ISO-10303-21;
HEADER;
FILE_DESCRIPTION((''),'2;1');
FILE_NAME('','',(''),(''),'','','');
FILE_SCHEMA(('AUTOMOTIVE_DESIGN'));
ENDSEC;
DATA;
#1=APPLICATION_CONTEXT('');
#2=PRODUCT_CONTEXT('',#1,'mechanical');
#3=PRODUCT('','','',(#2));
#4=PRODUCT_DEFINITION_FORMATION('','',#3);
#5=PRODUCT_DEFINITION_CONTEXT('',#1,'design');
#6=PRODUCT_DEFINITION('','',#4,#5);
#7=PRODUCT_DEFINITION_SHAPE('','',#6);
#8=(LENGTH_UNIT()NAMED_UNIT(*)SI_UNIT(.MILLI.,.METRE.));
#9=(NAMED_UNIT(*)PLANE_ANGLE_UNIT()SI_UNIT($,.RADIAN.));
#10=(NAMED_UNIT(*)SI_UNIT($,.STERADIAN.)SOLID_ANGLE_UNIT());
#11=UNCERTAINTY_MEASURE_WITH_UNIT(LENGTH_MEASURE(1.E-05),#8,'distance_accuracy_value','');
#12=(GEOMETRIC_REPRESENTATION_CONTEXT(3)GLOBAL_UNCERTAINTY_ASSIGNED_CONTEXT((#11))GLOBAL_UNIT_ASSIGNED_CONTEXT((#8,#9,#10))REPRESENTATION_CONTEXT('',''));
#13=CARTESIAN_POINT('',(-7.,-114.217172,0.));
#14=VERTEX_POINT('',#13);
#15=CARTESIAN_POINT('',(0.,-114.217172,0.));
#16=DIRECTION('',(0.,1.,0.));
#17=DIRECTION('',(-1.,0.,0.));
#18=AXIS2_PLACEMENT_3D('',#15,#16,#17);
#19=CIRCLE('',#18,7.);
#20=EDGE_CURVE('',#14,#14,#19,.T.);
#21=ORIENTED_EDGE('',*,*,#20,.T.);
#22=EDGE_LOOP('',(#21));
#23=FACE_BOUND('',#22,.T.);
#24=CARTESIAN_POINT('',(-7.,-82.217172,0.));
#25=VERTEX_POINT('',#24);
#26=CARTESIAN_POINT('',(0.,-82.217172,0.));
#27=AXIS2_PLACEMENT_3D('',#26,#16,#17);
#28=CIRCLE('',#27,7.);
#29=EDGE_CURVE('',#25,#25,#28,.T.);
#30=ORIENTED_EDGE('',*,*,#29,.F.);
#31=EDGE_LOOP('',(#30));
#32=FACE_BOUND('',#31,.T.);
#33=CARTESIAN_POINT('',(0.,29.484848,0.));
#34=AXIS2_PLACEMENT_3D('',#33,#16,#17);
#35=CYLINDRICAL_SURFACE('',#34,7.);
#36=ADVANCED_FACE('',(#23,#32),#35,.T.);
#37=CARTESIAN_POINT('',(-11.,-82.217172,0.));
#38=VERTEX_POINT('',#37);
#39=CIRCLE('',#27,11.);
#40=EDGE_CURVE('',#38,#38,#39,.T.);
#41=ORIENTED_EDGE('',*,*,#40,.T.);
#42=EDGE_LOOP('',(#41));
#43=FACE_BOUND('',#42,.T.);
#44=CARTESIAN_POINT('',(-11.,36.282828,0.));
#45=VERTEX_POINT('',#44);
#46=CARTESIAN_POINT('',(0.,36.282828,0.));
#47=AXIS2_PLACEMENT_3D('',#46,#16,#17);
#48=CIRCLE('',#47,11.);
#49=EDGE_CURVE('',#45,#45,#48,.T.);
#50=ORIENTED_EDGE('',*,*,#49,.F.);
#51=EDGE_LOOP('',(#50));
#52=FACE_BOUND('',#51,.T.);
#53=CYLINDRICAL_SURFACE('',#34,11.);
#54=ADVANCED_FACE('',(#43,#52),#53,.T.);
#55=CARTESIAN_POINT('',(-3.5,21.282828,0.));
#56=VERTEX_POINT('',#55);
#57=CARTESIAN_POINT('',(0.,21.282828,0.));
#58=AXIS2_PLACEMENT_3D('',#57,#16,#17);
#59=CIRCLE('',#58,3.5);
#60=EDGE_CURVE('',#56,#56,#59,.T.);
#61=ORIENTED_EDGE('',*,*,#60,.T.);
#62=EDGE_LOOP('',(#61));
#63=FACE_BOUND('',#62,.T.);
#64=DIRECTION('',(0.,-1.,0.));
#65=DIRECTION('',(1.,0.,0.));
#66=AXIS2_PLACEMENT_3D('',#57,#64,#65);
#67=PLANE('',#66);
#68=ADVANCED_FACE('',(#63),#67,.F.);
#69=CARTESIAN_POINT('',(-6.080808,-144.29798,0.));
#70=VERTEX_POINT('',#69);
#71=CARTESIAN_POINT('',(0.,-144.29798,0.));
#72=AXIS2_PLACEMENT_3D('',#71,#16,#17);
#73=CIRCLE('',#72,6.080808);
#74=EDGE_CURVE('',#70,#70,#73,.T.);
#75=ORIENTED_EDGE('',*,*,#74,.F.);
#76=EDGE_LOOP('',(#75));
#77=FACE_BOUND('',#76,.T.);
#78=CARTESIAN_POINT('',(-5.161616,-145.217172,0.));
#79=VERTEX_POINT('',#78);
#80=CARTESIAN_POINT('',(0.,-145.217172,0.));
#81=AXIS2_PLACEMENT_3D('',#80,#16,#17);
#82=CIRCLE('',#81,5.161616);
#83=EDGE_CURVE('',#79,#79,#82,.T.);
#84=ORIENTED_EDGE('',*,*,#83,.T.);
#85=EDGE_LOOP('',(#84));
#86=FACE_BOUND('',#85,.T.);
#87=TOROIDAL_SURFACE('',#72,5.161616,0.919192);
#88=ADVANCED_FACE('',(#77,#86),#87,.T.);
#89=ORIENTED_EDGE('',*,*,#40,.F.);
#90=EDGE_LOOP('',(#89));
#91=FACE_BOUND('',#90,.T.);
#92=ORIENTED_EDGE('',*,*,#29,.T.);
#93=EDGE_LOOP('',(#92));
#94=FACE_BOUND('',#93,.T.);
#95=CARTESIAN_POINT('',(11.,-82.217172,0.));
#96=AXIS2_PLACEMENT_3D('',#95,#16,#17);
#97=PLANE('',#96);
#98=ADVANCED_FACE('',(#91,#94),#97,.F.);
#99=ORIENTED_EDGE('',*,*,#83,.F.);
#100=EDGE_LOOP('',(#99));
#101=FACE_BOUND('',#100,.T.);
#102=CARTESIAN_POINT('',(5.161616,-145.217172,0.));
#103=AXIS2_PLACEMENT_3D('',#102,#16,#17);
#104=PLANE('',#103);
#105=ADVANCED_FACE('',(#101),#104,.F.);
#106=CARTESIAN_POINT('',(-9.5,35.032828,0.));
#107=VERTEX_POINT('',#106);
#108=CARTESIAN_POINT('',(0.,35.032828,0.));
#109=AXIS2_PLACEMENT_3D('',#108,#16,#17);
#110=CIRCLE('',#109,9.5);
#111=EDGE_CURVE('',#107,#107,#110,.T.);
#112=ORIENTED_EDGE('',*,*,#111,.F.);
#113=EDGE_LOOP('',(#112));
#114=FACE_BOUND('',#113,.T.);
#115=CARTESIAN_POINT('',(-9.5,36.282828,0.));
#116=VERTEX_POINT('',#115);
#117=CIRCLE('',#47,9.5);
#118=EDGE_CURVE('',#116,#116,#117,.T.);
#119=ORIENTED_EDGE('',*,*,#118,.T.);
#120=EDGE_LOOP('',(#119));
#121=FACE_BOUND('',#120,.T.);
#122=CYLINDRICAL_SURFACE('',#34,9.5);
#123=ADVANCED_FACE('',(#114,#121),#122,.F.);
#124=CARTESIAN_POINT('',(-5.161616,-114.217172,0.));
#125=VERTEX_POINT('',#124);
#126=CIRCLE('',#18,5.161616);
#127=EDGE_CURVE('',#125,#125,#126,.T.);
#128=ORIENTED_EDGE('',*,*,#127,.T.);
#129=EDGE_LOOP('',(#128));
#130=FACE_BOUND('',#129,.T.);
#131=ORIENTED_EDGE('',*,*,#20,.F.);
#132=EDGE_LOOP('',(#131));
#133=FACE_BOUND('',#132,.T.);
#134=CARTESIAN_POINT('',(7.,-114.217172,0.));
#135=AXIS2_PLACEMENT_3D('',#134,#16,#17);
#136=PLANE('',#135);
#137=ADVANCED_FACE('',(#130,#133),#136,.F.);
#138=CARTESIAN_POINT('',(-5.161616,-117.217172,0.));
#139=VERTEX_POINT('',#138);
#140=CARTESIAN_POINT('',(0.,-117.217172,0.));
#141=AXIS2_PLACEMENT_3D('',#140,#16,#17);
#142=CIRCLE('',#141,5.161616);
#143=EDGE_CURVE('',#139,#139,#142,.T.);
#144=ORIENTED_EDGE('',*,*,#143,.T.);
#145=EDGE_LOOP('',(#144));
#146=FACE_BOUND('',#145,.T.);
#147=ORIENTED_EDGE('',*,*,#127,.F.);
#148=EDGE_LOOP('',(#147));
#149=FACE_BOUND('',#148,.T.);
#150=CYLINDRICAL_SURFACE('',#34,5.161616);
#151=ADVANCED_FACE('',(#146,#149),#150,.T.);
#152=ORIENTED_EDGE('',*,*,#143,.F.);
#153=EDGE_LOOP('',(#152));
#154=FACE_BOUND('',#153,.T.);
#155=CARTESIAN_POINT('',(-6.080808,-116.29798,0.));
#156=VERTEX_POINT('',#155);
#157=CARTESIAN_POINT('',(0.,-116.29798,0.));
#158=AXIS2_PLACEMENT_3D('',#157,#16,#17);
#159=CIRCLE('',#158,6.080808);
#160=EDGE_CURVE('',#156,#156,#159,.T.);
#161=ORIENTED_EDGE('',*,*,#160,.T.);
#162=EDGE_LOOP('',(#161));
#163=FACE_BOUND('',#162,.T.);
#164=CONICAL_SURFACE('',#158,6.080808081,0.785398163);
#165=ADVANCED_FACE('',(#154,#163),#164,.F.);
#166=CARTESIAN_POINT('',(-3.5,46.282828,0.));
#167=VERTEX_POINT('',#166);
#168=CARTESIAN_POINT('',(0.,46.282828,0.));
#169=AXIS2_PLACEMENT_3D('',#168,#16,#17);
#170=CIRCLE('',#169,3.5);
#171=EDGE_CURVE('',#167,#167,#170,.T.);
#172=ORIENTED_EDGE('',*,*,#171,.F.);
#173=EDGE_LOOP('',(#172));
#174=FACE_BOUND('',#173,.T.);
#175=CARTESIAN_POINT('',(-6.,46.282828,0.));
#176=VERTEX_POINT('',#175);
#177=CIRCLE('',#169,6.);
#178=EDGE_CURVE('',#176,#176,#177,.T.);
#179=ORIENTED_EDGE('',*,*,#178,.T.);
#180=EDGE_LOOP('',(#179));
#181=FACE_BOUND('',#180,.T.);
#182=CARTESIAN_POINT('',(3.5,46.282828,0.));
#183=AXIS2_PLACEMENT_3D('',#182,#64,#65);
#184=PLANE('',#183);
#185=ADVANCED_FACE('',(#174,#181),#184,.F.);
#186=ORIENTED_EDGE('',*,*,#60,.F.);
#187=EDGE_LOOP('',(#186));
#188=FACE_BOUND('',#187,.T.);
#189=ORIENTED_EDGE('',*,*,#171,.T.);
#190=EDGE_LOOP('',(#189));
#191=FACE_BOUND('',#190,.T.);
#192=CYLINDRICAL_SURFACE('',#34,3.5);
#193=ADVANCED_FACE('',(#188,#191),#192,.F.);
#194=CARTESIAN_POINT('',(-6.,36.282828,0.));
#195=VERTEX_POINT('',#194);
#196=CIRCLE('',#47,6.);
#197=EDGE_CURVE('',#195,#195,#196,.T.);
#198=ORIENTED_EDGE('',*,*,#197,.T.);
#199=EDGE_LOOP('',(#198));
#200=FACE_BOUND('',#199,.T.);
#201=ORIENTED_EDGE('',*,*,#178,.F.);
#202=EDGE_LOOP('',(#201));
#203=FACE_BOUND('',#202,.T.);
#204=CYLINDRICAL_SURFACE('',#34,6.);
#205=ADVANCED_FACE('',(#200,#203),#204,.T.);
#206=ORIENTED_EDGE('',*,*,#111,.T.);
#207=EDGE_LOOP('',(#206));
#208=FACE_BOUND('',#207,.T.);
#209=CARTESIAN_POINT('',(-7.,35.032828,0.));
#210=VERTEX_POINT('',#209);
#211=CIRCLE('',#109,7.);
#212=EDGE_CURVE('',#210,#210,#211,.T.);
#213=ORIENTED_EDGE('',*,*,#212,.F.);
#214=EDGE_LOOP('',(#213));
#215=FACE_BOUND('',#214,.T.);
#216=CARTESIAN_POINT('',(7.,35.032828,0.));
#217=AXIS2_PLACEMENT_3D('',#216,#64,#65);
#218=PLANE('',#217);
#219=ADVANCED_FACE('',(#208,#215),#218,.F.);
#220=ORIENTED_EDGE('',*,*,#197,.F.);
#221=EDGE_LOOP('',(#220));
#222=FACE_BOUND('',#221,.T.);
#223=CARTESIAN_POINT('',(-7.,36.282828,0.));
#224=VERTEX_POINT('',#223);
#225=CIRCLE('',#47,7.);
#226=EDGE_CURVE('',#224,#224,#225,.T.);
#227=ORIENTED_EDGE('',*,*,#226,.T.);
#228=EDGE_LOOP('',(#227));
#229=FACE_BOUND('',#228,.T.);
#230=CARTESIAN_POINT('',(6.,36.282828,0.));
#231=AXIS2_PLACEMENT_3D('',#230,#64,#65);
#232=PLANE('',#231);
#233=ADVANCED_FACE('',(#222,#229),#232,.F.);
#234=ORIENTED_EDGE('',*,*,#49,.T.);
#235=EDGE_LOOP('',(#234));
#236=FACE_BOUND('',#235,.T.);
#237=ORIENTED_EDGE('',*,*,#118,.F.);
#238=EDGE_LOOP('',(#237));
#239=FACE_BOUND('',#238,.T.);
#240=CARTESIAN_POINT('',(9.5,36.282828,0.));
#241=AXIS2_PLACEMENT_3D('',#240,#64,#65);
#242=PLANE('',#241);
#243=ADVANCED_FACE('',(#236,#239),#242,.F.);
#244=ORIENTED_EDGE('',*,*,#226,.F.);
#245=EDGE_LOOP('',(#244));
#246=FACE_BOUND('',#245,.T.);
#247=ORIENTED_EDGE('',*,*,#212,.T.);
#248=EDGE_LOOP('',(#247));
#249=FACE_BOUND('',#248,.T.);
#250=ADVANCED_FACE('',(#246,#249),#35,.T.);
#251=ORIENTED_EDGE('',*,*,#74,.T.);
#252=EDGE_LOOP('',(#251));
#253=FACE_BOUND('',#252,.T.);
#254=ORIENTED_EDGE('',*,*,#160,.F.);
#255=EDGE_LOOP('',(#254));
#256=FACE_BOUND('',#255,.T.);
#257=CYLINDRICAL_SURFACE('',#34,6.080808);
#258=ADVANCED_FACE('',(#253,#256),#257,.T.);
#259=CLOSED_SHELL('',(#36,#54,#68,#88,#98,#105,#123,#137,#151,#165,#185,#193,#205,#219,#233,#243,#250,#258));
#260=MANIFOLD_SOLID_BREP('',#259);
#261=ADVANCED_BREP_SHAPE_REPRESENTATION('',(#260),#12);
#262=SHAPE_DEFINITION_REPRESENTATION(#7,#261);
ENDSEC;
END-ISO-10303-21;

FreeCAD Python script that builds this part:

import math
import FreeCAD as App
import Part
import Sketcher
from FreeCAD import Vector
Q = App.Units.Quantity

doc = App.newDocument("Part")
params = doc.addObject("Spreadsheet::Sheet", "Params")
for row, (alias, value) in enumerate([
    ("sketch1_width", "4 mm"),
    ("sketch1_width2", "1 mm"),
    ("sketch1_height", "25 mm"),
    ("sketch1_height2", "28 mm"),
    ("sketch1_height3", "3 mm"),
    ("revolution_angle", "360 deg"),
], start=1):
    params.set(f"A{row}", alias)
    params.set(f"B{row}", "=" + value)
    params.setAlias(f"B{row}", alias)

body = doc.addObject("PartDesign::Body", "Body")

# Sketch on XY plane
sketch1 = doc.addObject("Sketcher::SketchObject", "Sketch")
body.addObject(sketch1)
sketch1.AttachmentSupport = (doc.XY_Plane, [""])
sketch1.MapMode = "FlatFace"
sketch1.addGeometry([
    Part.LineSegment(Vector(6, 46.3, 0), Vector(3.5, 46.3, 0)),  # 0
    Part.LineSegment(Vector(3.5, 46.3, 0), Vector(3.5, 21.3, 0)),  # 1
    Part.LineSegment(Vector(3.5, 21.3, 0), Vector(0, 21.3, 0)),  # 2
    Part.LineSegment(Vector(0, 21.3, 0), Vector(0, -145.2, 0)),  # 3
    Part.LineSegment(Vector(0, -145.2, 0), Vector(5.2, -145.2, 0)),  # 4
    Part.ArcOfCircle(Part.Circle(Vector(5.2, -144.3, 0), Vector(0, 0, 1), 0.9), math.radians(-90), math.radians(0)),  # 5
    Part.LineSegment(Vector(6.1, -144.3, 0), Vector(6.1, -116.3, 0)),  # 6
    Part.LineSegment(Vector(6.1, -116.3, 0), Vector(5.2, -117.2, 0)),  # 7
    Part.LineSegment(Vector(5.2, -117.2, 0), Vector(5.2, -114.2, 0)),  # 8
    Part.LineSegment(Vector(5.2, -114.2, 0), Vector(7, -114.2, 0)),  # 9
    Part.LineSegment(Vector(7, -114.2, 0), Vector(7, -82.2, 0)),  # 10
    Part.LineSegment(Vector(7, -82.2, 0), Vector(11, -82.2, 0)),  # 11
    Part.LineSegment(Vector(11, -82.2, 0), Vector(11, 36.3, 0)),  # 12
    Part.LineSegment(Vector(11, 36.3, 0), Vector(9.5, 36.3, 0)),  # 13
    Part.LineSegment(Vector(9.5, 36.3, 0), Vector(9.5, 35, 0)),  # 14
    Part.LineSegment(Vector(9.5, 35, 0), Vector(7, 35, 0)),  # 15
    Part.LineSegment(Vector(7, 35, 0), Vector(7, 36.3, 0)),  # 16
    Part.LineSegment(Vector(7, 36.3, 0), Vector(6, 36.3, 0)),  # 17
    Part.LineSegment(Vector(6, 36.3, 0), Vector(6, 46.3, 0)),  # 18
], False)
sketch1.addConstraint([
    Sketcher.Constraint("Coincident", 0, 2, 1, 1),
    Sketcher.Constraint("Coincident", 1, 2, 2, 1),
    Sketcher.Constraint("Coincident", 2, 2, 3, 1),
    Sketcher.Constraint("Coincident", 3, 2, 4, 1),
    Sketcher.Constraint("Tangent", 4, 2, 5, 1),
    Sketcher.Constraint("Tangent", 5, 2, 6, 1),
    Sketcher.Constraint("Coincident", 6, 2, 7, 1),
    Sketcher.Constraint("Coincident", 7, 2, 8, 1),
    Sketcher.Constraint("Coincident", 8, 2, 9, 1),
    Sketcher.Constraint("Coincident", 9, 2, 10, 1),
    Sketcher.Constraint("Coincident", 10, 2, 11, 1),
    Sketcher.Constraint("Coincident", 11, 2, 12, 1),
    Sketcher.Constraint("Coincident", 12, 2, 13, 1),
    Sketcher.Constraint("Coincident", 13, 2, 14, 1),
    Sketcher.Constraint("Coincident", 14, 2, 15, 1),
    Sketcher.Constraint("Coincident", 15, 2, 16, 1),
    Sketcher.Constraint("Coincident", 16, 2, 17, 1),
    Sketcher.Constraint("Coincident", 17, 2, 18, 1),
    Sketcher.Constraint("Coincident", 18, 2, 0, 1),
    Sketcher.Constraint("Horizontal", 0),
    Sketcher.Constraint("Vertical", 1),
    Sketcher.Constraint("Horizontal", 2),
    Sketcher.Constraint("Vertical", 3),
    Sketcher.Constraint("Horizontal", 4),
    Sketcher.Constraint("Vertical", 6),
    Sketcher.Constraint("Vertical", 8),
    Sketcher.Constraint("Horizontal", 9),
    Sketcher.Constraint("Vertical", 10),
    Sketcher.Constraint("Horizontal", 11),
    Sketcher.Constraint("Vertical", 12),
    Sketcher.Constraint("Horizontal", 13),
    Sketcher.Constraint("Vertical", 14),
    Sketcher.Constraint("Horizontal", 15),
    Sketcher.Constraint("Vertical", 16),
    Sketcher.Constraint("Horizontal", 17),
    Sketcher.Constraint("Vertical", 18),
    Sketcher.Constraint("PointOnObject", 2, 2, -2),
    Sketcher.Constraint("Horizontal", 13, 2, 16, 2),
    Sketcher.Constraint("Vertical", 4, 2, 7, 2),
    Sketcher.Constraint("Vertical", 10, 2, 15, 2),
    Sketcher.Constraint("Equal", 0, 15),
    Sketcher.Constraint("DistanceX", 11, 1, 11, 2, Q("4 mm")),
    Sketcher.Constraint("DistanceX", 17, 2, 17, 1, Q("1 mm")),
    Sketcher.Constraint("DistanceY", 1, 2, 1, 1, Q("25 mm")),
    Sketcher.Constraint("DistanceY", 6, 1, 6, 2, Q("28 mm")),
    Sketcher.Constraint("DistanceY", 8, 1, 8, 2, Q("3 mm")),
    Sketcher.Constraint("DistanceY", 10, 1, 10, 2, Q("32 mm")),
    Sketcher.Constraint("DistanceY", 18, 1, 18, 2, Q("10 mm")),
    Sketcher.Constraint("Angle", 7, Q("-135 deg")),
    Sketcher.Constraint("DistanceX", 0, 2, 0, 1, Q("2.5 mm")),
    Sketcher.Constraint("DistanceX", 2, 2, 2, 1, Q("3.5 mm")),
    Sketcher.Constraint("DistanceY", 3, 2, 3, 1, Q("166.5 mm")),
    Sketcher.Constraint("DistanceY", 14, 2, 14, 1, Q("1.25 mm")),
    Sketcher.Constraint("Radius", 5, Q("0.919192 mm")),
    Sketcher.Constraint("DistanceX", 4, 1, 4, 2, Q("5.161616 mm")),
    Sketcher.Constraint("DistanceY", 5, 3, -1, 1, Q("144.29798 mm")),
])
sketch1.setExpression("Constraints[41]", "Params.sketch1_width")
sketch1.setExpression("Constraints[42]", "Params.sketch1_width2")
sketch1.setExpression("Constraints[43]", "Params.sketch1_height")
sketch1.setExpression("Constraints[44]", "Params.sketch1_height2")
sketch1.setExpression("Constraints[45]", "Params.sketch1_height3")
revolution = doc.addObject("PartDesign::Revolution", "Revolution")
body.addObject(revolution)
revolution.Profile = sketch1
revolution.ReferenceAxis = (sketch1, ["V_Axis"])
revolution.setExpression("Angle", "Params.revolution_angle")

doc.recompute()
